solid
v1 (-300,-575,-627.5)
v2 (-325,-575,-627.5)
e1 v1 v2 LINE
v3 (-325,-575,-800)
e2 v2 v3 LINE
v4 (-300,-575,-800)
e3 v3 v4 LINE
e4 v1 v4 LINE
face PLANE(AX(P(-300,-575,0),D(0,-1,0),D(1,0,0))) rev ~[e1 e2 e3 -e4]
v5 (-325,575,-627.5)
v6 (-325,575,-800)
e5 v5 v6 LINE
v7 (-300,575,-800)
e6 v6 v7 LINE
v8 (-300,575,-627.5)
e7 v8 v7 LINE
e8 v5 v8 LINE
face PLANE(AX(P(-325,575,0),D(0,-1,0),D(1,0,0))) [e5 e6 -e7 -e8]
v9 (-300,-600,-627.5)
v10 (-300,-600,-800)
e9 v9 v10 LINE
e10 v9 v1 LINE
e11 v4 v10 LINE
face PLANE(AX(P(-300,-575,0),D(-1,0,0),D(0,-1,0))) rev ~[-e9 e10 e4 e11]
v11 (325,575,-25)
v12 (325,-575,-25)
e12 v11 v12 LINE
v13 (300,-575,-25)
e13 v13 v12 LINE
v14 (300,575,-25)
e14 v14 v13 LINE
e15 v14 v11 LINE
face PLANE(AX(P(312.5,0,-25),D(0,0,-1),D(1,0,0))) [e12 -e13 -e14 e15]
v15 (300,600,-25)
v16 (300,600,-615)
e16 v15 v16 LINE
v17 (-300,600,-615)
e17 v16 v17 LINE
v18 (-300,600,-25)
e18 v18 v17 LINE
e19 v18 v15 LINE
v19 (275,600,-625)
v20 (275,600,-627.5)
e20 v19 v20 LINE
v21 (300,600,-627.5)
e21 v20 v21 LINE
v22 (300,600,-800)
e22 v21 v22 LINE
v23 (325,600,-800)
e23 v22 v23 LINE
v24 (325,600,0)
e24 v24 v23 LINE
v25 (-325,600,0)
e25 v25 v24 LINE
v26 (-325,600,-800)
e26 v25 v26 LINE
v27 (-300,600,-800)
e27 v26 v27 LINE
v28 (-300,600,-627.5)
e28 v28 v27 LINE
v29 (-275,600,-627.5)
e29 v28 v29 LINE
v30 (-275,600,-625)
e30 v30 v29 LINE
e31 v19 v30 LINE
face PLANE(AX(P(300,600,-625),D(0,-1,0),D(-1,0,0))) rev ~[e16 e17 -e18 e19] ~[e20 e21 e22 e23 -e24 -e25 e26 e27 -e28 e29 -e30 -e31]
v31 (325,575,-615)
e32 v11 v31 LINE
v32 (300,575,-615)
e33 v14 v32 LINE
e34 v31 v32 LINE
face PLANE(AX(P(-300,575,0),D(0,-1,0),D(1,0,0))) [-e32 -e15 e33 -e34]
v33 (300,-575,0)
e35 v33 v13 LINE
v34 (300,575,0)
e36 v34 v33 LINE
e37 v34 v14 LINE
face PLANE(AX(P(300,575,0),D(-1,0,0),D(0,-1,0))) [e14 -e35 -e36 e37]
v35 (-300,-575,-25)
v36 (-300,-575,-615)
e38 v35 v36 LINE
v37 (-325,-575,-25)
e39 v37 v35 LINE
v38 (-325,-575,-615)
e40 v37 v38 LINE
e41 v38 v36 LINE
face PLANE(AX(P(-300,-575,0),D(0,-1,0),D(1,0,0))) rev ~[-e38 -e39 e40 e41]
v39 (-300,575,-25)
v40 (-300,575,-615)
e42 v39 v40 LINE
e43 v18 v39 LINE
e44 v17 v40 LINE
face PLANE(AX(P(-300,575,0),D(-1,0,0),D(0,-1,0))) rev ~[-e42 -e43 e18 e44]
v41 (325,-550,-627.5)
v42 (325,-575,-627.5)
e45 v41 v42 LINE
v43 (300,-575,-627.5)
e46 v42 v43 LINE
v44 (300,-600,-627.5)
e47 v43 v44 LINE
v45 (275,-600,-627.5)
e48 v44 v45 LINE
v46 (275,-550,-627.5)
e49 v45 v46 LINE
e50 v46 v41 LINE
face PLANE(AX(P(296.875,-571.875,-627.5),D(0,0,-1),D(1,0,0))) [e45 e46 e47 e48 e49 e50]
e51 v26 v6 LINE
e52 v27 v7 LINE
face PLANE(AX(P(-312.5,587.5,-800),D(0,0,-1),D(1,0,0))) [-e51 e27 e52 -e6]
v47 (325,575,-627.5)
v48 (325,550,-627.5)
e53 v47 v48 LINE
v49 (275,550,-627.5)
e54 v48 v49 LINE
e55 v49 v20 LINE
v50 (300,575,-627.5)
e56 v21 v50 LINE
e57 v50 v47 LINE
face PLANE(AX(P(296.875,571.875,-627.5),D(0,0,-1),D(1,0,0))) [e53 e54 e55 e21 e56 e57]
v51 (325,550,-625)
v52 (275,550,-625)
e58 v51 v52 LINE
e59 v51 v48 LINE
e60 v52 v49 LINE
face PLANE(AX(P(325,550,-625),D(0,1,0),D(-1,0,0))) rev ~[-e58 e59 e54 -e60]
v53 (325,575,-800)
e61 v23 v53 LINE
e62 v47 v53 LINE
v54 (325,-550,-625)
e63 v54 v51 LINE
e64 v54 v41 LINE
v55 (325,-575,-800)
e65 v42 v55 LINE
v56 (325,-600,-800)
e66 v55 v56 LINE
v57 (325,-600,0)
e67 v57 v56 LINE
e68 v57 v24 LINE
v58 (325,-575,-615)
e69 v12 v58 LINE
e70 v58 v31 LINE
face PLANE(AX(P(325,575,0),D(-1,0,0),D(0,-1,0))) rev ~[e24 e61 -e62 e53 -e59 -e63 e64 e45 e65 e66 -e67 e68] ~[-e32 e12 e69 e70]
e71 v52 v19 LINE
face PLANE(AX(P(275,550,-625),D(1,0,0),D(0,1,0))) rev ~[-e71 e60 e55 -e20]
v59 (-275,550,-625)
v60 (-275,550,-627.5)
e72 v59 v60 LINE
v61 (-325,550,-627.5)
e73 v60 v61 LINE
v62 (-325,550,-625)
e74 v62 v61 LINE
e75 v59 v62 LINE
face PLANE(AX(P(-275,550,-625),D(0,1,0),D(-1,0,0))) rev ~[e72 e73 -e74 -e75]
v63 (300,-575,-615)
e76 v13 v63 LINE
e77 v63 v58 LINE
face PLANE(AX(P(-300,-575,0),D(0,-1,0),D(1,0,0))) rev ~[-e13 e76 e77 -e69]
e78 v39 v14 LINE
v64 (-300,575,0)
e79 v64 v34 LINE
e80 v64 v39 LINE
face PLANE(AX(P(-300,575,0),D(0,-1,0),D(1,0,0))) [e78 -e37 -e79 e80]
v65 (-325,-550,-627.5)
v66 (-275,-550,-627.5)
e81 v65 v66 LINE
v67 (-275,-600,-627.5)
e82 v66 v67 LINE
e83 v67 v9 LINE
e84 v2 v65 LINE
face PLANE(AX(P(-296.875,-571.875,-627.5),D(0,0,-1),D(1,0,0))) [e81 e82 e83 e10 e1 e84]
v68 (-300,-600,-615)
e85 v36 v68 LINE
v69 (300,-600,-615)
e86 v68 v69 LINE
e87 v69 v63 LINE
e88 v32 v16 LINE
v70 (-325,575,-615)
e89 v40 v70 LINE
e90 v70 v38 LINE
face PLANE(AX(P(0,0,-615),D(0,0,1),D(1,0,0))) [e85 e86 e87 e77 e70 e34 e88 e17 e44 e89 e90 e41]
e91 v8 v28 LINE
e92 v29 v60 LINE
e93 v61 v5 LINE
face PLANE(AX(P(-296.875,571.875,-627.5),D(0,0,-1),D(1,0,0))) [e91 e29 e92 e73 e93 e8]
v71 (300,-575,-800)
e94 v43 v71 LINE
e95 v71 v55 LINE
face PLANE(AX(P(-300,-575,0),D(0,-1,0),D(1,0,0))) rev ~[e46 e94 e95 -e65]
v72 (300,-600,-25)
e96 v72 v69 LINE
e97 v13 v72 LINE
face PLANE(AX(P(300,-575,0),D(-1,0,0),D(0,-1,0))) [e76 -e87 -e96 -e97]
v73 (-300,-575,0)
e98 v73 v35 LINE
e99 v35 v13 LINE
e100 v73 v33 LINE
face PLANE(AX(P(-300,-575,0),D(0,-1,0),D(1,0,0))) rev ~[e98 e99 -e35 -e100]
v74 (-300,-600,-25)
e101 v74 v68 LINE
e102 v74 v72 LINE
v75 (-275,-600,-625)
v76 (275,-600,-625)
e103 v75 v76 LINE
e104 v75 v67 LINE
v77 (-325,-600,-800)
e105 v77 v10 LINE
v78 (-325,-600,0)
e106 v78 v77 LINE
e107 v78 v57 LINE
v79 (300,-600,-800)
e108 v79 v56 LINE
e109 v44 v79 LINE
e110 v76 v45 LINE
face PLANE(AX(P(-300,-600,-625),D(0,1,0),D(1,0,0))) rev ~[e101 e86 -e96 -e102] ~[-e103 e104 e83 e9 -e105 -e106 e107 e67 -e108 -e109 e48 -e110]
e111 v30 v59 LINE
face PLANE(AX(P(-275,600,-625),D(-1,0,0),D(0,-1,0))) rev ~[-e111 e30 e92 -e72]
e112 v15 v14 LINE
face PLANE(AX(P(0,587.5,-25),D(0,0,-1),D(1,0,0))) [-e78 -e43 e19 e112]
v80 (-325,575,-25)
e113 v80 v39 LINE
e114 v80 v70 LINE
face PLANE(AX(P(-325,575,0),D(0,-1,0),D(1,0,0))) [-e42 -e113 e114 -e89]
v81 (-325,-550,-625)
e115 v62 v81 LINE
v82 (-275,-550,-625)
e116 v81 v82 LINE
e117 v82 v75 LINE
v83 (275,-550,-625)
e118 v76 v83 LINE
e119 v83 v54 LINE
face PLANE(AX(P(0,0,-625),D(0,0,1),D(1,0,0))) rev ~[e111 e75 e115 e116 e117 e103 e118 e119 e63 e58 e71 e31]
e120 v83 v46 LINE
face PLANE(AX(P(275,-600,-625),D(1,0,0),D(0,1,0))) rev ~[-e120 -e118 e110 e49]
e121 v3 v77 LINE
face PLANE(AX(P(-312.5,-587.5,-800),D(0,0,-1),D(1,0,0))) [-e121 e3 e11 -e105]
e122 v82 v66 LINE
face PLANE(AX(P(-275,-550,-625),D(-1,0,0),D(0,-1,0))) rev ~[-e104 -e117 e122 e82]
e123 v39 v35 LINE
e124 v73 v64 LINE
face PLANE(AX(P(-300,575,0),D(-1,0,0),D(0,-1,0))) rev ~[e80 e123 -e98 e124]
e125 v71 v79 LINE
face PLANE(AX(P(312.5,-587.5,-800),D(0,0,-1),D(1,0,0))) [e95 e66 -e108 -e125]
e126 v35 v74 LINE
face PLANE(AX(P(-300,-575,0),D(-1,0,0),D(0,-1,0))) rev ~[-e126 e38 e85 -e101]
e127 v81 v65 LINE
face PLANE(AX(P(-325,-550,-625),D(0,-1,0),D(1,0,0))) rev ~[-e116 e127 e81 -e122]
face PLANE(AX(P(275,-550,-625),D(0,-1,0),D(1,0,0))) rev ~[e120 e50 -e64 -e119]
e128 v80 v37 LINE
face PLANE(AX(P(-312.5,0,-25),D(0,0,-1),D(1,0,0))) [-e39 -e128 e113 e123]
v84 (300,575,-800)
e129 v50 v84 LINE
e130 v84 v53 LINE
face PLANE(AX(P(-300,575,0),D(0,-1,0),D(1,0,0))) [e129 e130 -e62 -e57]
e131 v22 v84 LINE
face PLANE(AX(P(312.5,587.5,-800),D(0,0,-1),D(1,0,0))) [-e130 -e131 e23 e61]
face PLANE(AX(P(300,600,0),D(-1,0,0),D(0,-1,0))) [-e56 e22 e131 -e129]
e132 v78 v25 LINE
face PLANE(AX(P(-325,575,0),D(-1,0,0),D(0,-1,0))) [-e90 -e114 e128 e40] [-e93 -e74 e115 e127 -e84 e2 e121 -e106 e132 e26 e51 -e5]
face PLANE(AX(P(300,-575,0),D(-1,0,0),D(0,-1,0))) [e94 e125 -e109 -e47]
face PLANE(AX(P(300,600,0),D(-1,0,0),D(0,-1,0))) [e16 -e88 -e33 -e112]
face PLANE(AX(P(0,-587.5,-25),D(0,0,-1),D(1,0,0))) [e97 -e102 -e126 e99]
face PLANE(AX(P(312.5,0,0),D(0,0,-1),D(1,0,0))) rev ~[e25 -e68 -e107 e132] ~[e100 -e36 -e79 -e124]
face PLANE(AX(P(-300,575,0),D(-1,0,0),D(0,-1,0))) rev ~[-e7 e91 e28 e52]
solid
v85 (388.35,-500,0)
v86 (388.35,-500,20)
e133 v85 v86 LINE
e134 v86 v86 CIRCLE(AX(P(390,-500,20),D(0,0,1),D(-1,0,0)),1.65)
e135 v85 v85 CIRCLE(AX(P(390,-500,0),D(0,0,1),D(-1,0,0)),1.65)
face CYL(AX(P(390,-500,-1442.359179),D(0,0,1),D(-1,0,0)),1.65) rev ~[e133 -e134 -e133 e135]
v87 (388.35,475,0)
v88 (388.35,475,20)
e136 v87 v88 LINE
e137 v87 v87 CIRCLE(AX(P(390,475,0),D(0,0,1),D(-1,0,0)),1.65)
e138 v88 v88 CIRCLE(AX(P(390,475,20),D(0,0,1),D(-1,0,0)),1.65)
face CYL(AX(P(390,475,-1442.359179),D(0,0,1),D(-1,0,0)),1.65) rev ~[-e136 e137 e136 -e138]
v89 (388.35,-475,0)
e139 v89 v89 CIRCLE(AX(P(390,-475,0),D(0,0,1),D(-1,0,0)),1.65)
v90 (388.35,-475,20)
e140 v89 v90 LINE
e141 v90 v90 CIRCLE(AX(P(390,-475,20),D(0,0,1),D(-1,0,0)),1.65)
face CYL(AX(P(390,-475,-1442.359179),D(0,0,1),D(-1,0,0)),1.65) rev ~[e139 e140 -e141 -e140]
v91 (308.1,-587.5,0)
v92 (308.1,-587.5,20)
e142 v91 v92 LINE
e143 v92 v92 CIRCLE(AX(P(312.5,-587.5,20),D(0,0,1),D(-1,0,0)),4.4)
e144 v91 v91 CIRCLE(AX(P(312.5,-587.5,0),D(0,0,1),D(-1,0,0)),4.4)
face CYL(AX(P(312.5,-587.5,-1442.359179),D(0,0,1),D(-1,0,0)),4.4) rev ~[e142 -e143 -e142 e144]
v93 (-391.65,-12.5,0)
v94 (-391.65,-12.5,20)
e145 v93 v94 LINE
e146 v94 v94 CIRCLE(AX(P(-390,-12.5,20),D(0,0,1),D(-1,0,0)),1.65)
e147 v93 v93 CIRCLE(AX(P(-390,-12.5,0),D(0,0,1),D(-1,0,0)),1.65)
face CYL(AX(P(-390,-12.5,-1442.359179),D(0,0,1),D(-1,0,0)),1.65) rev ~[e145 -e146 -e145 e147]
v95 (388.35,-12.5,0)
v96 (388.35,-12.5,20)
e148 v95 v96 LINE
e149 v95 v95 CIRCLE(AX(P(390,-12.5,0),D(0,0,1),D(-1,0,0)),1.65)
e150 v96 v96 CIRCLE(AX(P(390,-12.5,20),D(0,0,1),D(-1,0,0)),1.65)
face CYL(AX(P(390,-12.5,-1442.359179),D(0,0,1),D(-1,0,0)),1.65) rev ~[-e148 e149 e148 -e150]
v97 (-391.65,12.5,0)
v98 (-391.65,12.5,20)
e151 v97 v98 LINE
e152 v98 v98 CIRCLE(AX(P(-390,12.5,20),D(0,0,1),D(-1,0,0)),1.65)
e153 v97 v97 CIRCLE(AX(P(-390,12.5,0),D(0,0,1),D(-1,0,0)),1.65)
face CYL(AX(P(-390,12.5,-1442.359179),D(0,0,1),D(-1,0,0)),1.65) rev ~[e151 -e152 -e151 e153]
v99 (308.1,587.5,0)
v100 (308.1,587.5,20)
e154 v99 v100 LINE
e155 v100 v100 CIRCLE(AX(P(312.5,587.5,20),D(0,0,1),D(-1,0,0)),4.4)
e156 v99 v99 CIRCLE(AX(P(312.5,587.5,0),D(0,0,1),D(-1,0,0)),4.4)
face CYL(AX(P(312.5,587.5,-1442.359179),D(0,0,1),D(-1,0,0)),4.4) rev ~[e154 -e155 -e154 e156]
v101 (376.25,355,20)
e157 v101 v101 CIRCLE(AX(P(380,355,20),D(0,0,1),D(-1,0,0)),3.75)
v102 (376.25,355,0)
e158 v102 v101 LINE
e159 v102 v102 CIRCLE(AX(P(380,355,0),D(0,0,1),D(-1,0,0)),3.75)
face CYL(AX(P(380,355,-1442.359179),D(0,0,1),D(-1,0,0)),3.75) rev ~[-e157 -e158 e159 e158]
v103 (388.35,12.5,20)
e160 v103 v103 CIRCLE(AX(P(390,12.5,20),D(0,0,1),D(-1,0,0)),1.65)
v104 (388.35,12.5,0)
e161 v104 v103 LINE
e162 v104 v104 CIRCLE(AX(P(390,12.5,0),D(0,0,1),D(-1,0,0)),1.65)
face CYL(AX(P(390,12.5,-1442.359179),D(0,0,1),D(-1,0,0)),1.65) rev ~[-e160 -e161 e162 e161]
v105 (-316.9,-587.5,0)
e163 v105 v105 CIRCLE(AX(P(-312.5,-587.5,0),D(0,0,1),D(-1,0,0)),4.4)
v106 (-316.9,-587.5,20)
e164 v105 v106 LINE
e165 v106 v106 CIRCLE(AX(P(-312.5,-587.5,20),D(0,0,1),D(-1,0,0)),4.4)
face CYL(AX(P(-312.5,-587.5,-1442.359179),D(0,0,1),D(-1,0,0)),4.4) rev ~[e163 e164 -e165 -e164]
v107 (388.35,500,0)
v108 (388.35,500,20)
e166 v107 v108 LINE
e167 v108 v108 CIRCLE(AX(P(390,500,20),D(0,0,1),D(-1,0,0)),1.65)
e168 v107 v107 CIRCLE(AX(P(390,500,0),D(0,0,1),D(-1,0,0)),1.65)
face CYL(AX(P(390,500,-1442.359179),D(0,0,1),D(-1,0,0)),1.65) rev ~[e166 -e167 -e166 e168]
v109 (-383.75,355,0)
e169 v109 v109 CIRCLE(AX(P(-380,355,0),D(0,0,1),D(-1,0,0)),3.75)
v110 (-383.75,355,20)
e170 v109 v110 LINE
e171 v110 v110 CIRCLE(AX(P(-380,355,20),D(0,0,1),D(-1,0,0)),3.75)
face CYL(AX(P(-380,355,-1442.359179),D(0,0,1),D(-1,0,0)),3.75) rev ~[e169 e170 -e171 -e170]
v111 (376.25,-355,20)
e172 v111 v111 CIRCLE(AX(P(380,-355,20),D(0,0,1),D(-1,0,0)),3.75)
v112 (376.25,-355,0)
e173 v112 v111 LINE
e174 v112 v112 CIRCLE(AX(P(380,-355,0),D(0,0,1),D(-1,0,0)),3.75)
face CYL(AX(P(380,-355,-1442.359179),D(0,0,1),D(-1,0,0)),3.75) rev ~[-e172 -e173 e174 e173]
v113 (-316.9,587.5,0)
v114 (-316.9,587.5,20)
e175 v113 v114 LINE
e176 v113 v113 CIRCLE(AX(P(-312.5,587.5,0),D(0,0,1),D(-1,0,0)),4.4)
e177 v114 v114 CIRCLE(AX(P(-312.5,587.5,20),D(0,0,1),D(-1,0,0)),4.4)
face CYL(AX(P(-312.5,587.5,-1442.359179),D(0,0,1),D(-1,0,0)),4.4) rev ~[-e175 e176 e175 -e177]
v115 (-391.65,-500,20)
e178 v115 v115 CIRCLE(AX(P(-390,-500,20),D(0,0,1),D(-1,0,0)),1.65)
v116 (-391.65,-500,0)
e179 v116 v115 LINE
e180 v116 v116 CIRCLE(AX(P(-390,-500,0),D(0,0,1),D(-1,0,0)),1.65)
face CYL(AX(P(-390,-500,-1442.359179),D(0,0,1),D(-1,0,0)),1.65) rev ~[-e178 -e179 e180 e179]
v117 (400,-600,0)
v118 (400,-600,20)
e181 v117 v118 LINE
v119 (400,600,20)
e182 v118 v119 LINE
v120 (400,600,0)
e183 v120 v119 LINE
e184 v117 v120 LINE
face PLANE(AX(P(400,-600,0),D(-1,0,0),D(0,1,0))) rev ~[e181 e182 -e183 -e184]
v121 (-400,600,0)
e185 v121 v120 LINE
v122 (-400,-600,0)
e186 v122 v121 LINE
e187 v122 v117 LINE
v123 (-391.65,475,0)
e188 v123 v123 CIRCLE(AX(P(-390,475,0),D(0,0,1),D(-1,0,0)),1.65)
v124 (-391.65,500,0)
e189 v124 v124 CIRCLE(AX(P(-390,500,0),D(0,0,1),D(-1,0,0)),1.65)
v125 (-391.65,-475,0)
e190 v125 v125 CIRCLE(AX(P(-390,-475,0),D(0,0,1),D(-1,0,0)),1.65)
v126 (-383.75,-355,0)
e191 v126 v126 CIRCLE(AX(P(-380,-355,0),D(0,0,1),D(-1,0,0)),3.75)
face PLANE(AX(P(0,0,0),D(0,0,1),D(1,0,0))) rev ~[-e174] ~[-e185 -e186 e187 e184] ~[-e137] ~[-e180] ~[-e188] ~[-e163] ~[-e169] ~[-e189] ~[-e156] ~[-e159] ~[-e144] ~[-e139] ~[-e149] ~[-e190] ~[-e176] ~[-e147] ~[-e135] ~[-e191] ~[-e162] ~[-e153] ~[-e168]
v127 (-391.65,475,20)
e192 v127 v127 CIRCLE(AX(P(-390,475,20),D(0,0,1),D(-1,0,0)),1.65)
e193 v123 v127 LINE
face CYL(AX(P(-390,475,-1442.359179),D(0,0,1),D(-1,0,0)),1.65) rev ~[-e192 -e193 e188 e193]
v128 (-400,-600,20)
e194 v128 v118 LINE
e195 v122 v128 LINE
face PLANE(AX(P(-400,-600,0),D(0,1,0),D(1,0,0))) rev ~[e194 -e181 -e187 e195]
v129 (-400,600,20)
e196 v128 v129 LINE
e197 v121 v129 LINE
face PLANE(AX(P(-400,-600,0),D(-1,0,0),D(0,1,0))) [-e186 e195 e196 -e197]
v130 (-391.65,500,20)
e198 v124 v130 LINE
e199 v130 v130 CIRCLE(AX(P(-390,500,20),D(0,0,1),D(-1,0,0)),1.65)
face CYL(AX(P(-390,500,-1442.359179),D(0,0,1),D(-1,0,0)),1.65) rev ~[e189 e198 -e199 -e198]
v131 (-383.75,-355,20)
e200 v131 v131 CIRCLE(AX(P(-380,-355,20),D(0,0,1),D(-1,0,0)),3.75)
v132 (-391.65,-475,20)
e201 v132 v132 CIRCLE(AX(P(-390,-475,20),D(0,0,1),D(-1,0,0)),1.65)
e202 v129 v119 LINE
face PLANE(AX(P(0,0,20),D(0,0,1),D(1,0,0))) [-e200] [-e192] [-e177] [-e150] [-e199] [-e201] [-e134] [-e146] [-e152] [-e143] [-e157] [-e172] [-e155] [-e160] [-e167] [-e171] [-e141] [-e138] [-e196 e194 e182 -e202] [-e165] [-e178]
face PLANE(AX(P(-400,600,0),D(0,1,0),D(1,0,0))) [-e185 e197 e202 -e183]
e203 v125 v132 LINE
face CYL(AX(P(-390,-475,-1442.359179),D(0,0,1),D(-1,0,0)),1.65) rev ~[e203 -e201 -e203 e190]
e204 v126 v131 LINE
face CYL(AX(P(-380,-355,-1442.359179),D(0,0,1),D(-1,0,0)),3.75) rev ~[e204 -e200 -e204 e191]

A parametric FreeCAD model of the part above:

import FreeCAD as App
import Part
import Sketcher

V = App.Vector
Q = App.Units.Quantity

doc = App.newDocument("Part")
body = doc.addObject("PartDesign::Body", "Body")

sketch1 = doc.addObject("Sketcher::SketchObject", "Sketch")
body.addObject(sketch1)
sketch1.AttachmentSupport = (doc.XY_Plane, [""])
sketch1.MapMode = "FlatFace"
sketch1.addGeometry([
    Part.LineSegment(V(-400, 600, 0), V(-400, -600, 0)),
    Part.LineSegment(V(-400, -600, 0), V(400, -600, 0)),
    Part.LineSegment(V(400, -600, 0), V(400, 600, 0)),
    Part.LineSegment(V(400, 600, 0), V(-400, 600, 0)),
], False)
sketch1.addConstraint([
    Sketcher.Constraint("Coincident", 0, 2, 1, 1),
    Sketcher.Constraint("Coincident", 1, 2, 2, 1),
    Sketcher.Constraint("Coincident", 2, 2, 3, 1),
    Sketcher.Constraint("Coincident", 3, 2, 0, 1),
    Sketcher.Constraint("Vertical", 0),
    Sketcher.Constraint("Horizontal", 1),
    Sketcher.Constraint("Vertical", 2),
    Sketcher.Constraint("Horizontal", 3),
    Sketcher.Constraint("Symmetric", 0, 2, 2, 2, -1, 1),
    Sketcher.Constraint("DistanceX", 1, 1, 1, 2, Q("800 mm")),
    Sketcher.Constraint("DistanceY", 0, 2, 0, 1, Q("1200 mm")),
])
pad1 = doc.addObject("PartDesign::Pad", "Pad")
body.addObject(pad1)
pad1.Profile = sketch1
pad1.Length = 20

sketch2 = doc.addObject("Sketcher::SketchObject", "Sketch001")
body.addObject(sketch2)
sketch2.AttachmentSupport = (doc.XY_Plane, [""])
sketch2.MapMode = "FlatFace"
sketch2.addGeometry([
    Part.Circle(V(390, -500, 0), V(0, 0, 1), 1.65),
    Part.Circle(V(390, -475, 0), V(0, 0, 1), 1.65),
    Part.Circle(V(390, -12.5, 0), V(0, 0, 1), 1.65),
    Part.Circle(V(390, 12.5, 0), V(0, 0, 1), 1.65),
    Part.Circle(V(390, 500, 0), V(0, 0, 1), 1.65),
    Part.Circle(V(390, 475, 0), V(0, 0, 1), 1.65),
    Part.Circle(V(-390, 500, 0), V(0, 0, 1), 1.65),
    Part.Circle(V(-390, 475, 0), V(0, 0, 1), 1.65),
    Part.Circle(V(-390, 12.5, 0), V(0, 0, 1), 1.65),
    Part.Circle(V(-390, -12.5, 0), V(0, 0, 1), 1.65),
    Part.Circle(V(-390, -475, 0), V(0, 0, 1), 1.65),
    Part.Circle(V(-390, -500, 0), V(0, 0, 1), 1.65),
], False)
sketch2.addConstraint([
    Sketcher.Constraint("Equal", 0, 1),
    Sketcher.Constraint("Equal", 1, 2),
    Sketcher.Constraint("Equal", 2, 3),
    Sketcher.Constraint("Equal", 3, 4),
    Sketcher.Constraint("Equal", 4, 5),
    Sketcher.Constraint("Equal", 5, 6),
    Sketcher.Constraint("Equal", 6, 7),
    Sketcher.Constraint("Equal", 7, 8),
    Sketcher.Constraint("Equal", 8, 9),
    Sketcher.Constraint("Equal", 9, 10),
    Sketcher.Constraint("Equal", 10, 11),
    Sketcher.Constraint("Symmetric", 0, 3, 6, 3, -1, 1),
    Sketcher.Constraint("Symmetric", 1, 3, 7, 3, -1, 1),
    Sketcher.Constraint("Symmetric", 2, 3, 8, 3, -1, 1),
    Sketcher.Constraint("Symmetric", 3, 3, 9, 3, -1, 1),
    Sketcher.Constraint("Symmetric", 5, 3, 10, 3, -1, 1),
    Sketcher.Constraint("Symmetric", 4, 3, 11, 3, -1, 1),
    Sketcher.Constraint("Symmetric", 4, 3, 6, 3, -2),
    Sketcher.Constraint("Symmetric", 5, 3, 7, 3, -2),
    Sketcher.Constraint("Symmetric", 3, 3, 8, 3, -2),
    Sketcher.Constraint("Vertical", 0, 3, 1, 3),
    Sketcher.Constraint("Vertical", 1, 3, 2, 3),
    Sketcher.Constraint("Diameter", 0, Q("3.3 mm")),
    Sketcher.Constraint("DistanceX", -1, 1, 0, 3, Q("390 mm")),
    Sketcher.Constraint("DistanceY", 0, 3, -1, 1, Q("500 mm")),
    Sketcher.Constraint("DistanceY", 1, 3, -1, 1, Q("475 mm")),
    Sketcher.Constraint("DistanceY", 2, 3, 3, 3, Q("25 mm")),
])
doc.recompute()
hole = doc.addObject("PartDesign::Hole", "Hole")
body.addObject(hole)
hole.Profile = sketch2
hole.ThreadType = "None"
hole.Diameter = 3.3
hole.DepthType = "ThroughAll"
hole.Reversed = True

sketch3 = doc.addObject("Sketcher::SketchObject", "Sketch002")
body.addObject(sketch3)
sketch3.AttachmentSupport = (doc.XY_Plane, [""])
sketch3.MapMode = "FlatFace"
sketch3.addGeometry([
    Part.Circle(V(380, -355, 0), V(0, 0, 1), 3.75),
    Part.Circle(V(380, 355, 0), V(0, 0, 1), 3.75),
    Part.Circle(V(-380, 355, 0), V(0, 0, 1), 3.75),
    Part.Circle(V(-380, -355, 0), V(0, 0, 1), 3.75),
], False)
sketch3.addConstraint([
    Sketcher.Constraint("Equal", 0, 1),
    Sketcher.Constraint("Equal", 1, 2),
    Sketcher.Constraint("Equal", 2, 3),
    Sketcher.Constraint("Symmetric", 0, 3, 2, 3, -1, 1),
    Sketcher.Constraint("Symmetric", 1, 3, 3, 3, -1, 1),
    Sketcher.Constraint("Symmetric", 1, 3, 2, 3, -2),
    Sketcher.Constraint("Diameter", 0, Q("7.5 mm")),
    Sketcher.Constraint("DistanceX", -1, 1, 0, 3, Q("380 mm")),
    Sketcher.Constraint("DistanceY", 0, 3, -1, 1, Q("355 mm")),
])
doc.recompute()
hole2 = doc.addObject("PartDesign::Hole", "Hole001")
body.addObject(hole2)
hole2.Profile = sketch3
hole2.ThreadType = "None"
hole2.Diameter = 7.5
hole2.DepthType = "ThroughAll"
hole2.Reversed = True

sketch4 = doc.addObject("Sketcher::SketchObject", "Sketch003")
body.addObject(sketch4)
sketch4.AttachmentSupport = (doc.XY_Plane, [""])
sketch4.MapMode = "FlatFace"
sketch4.addGeometry([
    Part.Circle(V(-312.5, -587.5, 0), V(0, 0, 1), 4.4),
    Part.Circle(V(312.5, -587.5, 0), V(0, 0, 1), 4.4),
    Part.Circle(V(312.5, 587.5, 0), V(0, 0, 1), 4.4),
    Part.Circle(V(-312.5, 587.5, 0), V(0, 0, 1), 4.4),
], False)
sketch4.addConstraint([
    Sketcher.Constraint("Equal", 0, 1),
    Sketcher.Constraint("Equal", 1, 2),
    Sketcher.Constraint("Equal", 2, 3),
    Sketcher.Constraint("Symmetric", 0, 3, 2, 3, -1, 1),
    Sketcher.Constraint("Symmetric", 1, 3, 3, 3, -1, 1),
    Sketcher.Constraint("Symmetric", 0, 3, 1, 3, -2),
    Sketcher.Constraint("Diameter", 0, Q("8.8 mm")),
    Sketcher.Constraint("DistanceX", 0, 3, 1, 3, Q("625 mm")),
    Sketcher.Constraint("DistanceY", 1, 3, 2, 3, Q("1175 mm")),
])
doc.recompute()
hole3 = doc.addObject("PartDesign::Hole", "Hole002")
body.addObject(hole3)
hole3.Profile = sketch4
hole3.ThreadType = "None"
hole3.Diameter = 8.8
hole3.DepthType = "ThroughAll"
hole3.Reversed = True
body2 = doc.addObject("PartDesign::Body", "Body001")

sketch5 = doc.addObject("Sketcher::SketchObject", "Sketch004")
body2.addObject(sketch5)
sketch5.AttachmentSupport = (doc.getObject("XY_Plane001"), [""])
sketch5.MapMode = "FlatFace"
sketch5.addGeometry([
    Part.LineSegment(V(-325, -600, 0), V(-325, -575, 0)),
    Part.LineSegment(V(-325, -575, 0), V(-300, -575, 0)),
    Part.LineSegment(V(-300, -575, 0), V(-300, -600, 0)),
    Part.LineSegment(V(-300, -600, 0), V(-325, -600, 0)),
], False)
sketch5.addConstraint([
    Sketcher.Constraint("Coincident", 0, 2, 1, 1),
    Sketcher.Constraint("Coincident", 1, 2, 2, 1),
    Sketcher.Constraint("Coincident", 2, 2, 3, 1),
    Sketcher.Constraint("Coincident", 3, 2, 0, 1),
    Sketcher.Constraint("Vertical", 0),
    Sketcher.Constraint("Horizontal", 1),
    Sketcher.Constraint("Vertical", 2),
    Sketcher.Constraint("Horizontal", 3),
    Sketcher.Constraint("Equal", 3, 0),
    Sketcher.Constraint("DistanceX", 1, 1, 1, 2, Q("25 mm")),
    Sketcher.Constraint("DistanceX", 0, 2, -1, 1, Q("325 mm")),
    Sketcher.Constraint("DistanceY", 0, 2, -1, 1, Q("575 mm")),
])
pad2 = doc.addObject("PartDesign::Pad", "Pad001")
body2.addObject(pad2)
pad2.Profile = sketch5
pad2.Length = 800
pad2.Reversed = True
body3 = doc.addObject("PartDesign::Body", "Body002")

sketch6 = doc.addObject("Sketcher::SketchObject", "Sketch005")
body3.addObject(sketch6)
sketch6.AttachmentSupport = (doc.getObject("XY_Plane002"), [""])
sketch6.MapMode = "FlatFace"
sketch6.addGeometry([
    Part.LineSegment(V(300, -600, 0), V(300, -575, 0)),
    Part.LineSegment(V(300, -575, 0), V(325, -575, 0)),
    Part.LineSegment(V(325, -575, 0), V(325, -600, 0)),
    Part.LineSegment(V(325, -600, 0), V(300, -600, 0)),
], False)
sketch6.addConstraint([
    Sketcher.Constraint("Coincident", 0, 2, 1, 1),
    Sketcher.Constraint("Coincident", 1, 2, 2, 1),
    Sketcher.Constraint("Coincident", 2, 2, 3, 1),
    Sketcher.Constraint("Coincident", 3, 2, 0, 1),
    Sketcher.Constraint("Vertical", 0),
    Sketcher.Constraint("Horizontal", 1),
    Sketcher.Constraint("Vertical", 2),
    Sketcher.Constraint("Horizontal", 3),
    Sketcher.Constraint("Equal", 3, 0),
    Sketcher.Constraint("DistanceX", 1, 1, 1, 2, Q("25 mm")),
    Sketcher.Constraint("DistanceX", -1, 1, 0, 2, Q("300 mm")),
    Sketcher.Constraint("DistanceY", 0, 2, -1, 1, Q("575 mm")),
])
pad3 = doc.addObject("PartDesign::Pad", "Pad002")
body3.addObject(pad3)
pad3.Profile = sketch6
pad3.Length = 800
pad3.Reversed = True
body4 = doc.addObject("PartDesign::Body", "Body003")

sketch7 = doc.addObject("Sketcher::SketchObject", "Sketch006")
body4.addObject(sketch7)
sketch7.AttachmentSupport = (doc.getObject("XY_Plane003"), [""])
sketch7.MapMode = "FlatFace"
sketch7.addGeometry([
    Part.LineSegment(V(-325, 575, 0), V(-325, 600, 0)),
    Part.LineSegment(V(-325, 600, 0), V(-300, 600, 0)),
    Part.LineSegment(V(-300, 600, 0), V(-300, 575, 0)),
    Part.LineSegment(V(-300, 575, 0), V(-325, 575, 0)),
], False)
sketch7.addConstraint([
    Sketcher.Constraint("Coincident", 0, 2, 1, 1),
    Sketcher.Constraint("Coincident", 1, 2, 2, 1),
    Sketcher.Constraint("Coincident", 2, 2, 3, 1),
    Sketcher.Constraint("Coincident", 3, 2, 0, 1),
    Sketcher.Constraint("Vertical", 0),
    Sketcher.Constraint("Horizontal", 1),
    Sketcher.Constraint("Vertical", 2),
    Sketcher.Constraint("Horizontal", 3),
    Sketcher.Constraint("Equal", 3, 0),
    Sketcher.Constraint("DistanceX", 1, 1, 1, 2, Q("25 mm")),
    Sketcher.Constraint("DistanceX", 0, 2, -1, 1, Q("325 mm")),
    Sketcher.Constraint("DistanceY", -1, 1, 0, 2, Q("600 mm")),
])
pad4 = doc.addObject("PartDesign::Pad", "Pad003")
body4.addObject(pad4)
pad4.Profile = sketch7
pad4.Length = 800
pad4.Reversed = True
body5 = doc.addObject("PartDesign::Body", "Body004")

sketch8 = doc.addObject("Sketcher::SketchObject", "Sketch007")
body5.addObject(sketch8)
sketch8.AttachmentSupport = (doc.getObject("XY_Plane004"), [""])
sketch8.MapMode = "FlatFace"
sketch8.addGeometry([
    Part.LineSegment(V(300, 575, 0), V(300, 600, 0)),
    Part.LineSegment(V(300, 600, 0), V(325, 600, 0)),
    Part.LineSegment(V(325, 600, 0), V(325, 575, 0)),
    Part.LineSegment(V(325, 575, 0), V(300, 575, 0)),
], False)
sketch8.addConstraint([
    Sketcher.Constraint("Coincident", 0, 2, 1, 1),
    Sketcher.Constraint("Coincident", 1, 2, 2, 1),
    Sketcher.Constraint("Coincident", 2, 2, 3, 1),
    Sketcher.Constraint("Coincident", 3, 2, 0, 1),
    Sketcher.Constraint("Vertical", 0),
    Sketcher.Constraint("Horizontal", 1),
    Sketcher.Constraint("Vertical", 2),
    Sketcher.Constraint("Horizontal", 3),
    Sketcher.Constraint("Equal", 3, 0),
    Sketcher.Constraint("DistanceX", 1, 1, 1, 2, Q("25 mm")),
    Sketcher.Constraint("DistanceX", -1, 1, 0, 2, Q("300 mm")),
    Sketcher.Constraint("DistanceY", -1, 1, 0, 2, Q("600 mm")),
])
pad5 = doc.addObject("PartDesign::Pad", "Pad004")
body5.addObject(pad5)
pad5.Profile = sketch8
pad5.Length = 800
pad5.Reversed = True
body6 = doc.addObject("PartDesign::Body", "Body005")

sketch9 = doc.addObject("Sketcher::SketchObject", "Sketch008")
body6.addObject(sketch9)
sketch9.AttachmentSupport = (doc.getObject("XY_Plane005"), [""])
sketch9.MapMode = "FlatFace"
sketch9.addGeometry([
    Part.LineSegment(V(-300, 575, 0), V(-300, 600, 0)),
    Part.LineSegment(V(-300, 600, 0), V(300, 600, 0)),
    Part.LineSegment(V(300, 600, 0), V(300, 575, 0)),
    Part.LineSegment(V(300, 575, 0), V(-300, 575, 0)),
], False)
sketch9.addConstraint([
    Sketcher.Constraint("Coincident", 0, 2, 1, 1),
    Sketcher.Constraint("Coincident", 1, 2, 2, 1),
    Sketcher.Constraint("Coincident", 2, 2, 3, 1),
    Sketcher.Constraint("Coincident", 3, 2, 0, 1),
    Sketcher.Constraint("Vertical", 0),
    Sketcher.Constraint("Horizontal", 1),
    Sketcher.Constraint("Vertical", 2),
    Sketcher.Constraint("Horizontal", 3),
    Sketcher.Constraint("DistanceX", 1, 1, 1, 2, Q("600 mm")),
    Sketcher.Constraint("DistanceY", 0, 1, 0, 2, Q("25 mm")),
    Sketcher.Constraint("DistanceX", 0, 2, -1, 1, Q("300 mm")),
    Sketcher.Constraint("DistanceY", -1, 1, 0, 2, Q("600 mm")),
])
pad6 = doc.addObject("PartDesign::Pad", "Pad005")
body6.addObject(pad6)
pad6.Profile = sketch9
pad6.Length = 25
pad6.Reversed = True
body7 = doc.addObject("PartDesign::Body", "Body006")

sketch10 = doc.addObject("Sketcher::SketchObject", "Sketch009")
body7.addObject(sketch10)
sketch10.AttachmentSupport = (doc.getObject("XY_Plane006"), [""])
sketch10.MapMode = "FlatFace"
sketch10.addGeometry([
    Part.LineSegment(V(-325, -575, 0), V(-325, 575, 0)),
    Part.LineSegment(V(-325, 575, 0), V(-300, 575, 0)),
    Part.LineSegment(V(-300, 575, 0), V(-300, -575, 0)),
    Part.LineSegment(V(-300, -575, 0), V(-325, -575, 0)),
], False)
sketch10.addConstraint([
    Sketcher.Constraint("Coincident", 0, 2, 1, 1),
    Sketcher.Constraint("Coincident", 1, 2, 2, 1),
    Sketcher.Constraint("Coincident", 2, 2, 3, 1),
    Sketcher.Constraint("Coincident", 3, 2, 0, 1),
    Sketcher.Constraint("Vertical", 0),
    Sketcher.Constraint("Horizontal", 1),
    Sketcher.Constraint("Vertical", 2),
    Sketcher.Constraint("Horizontal", 3),
    Sketcher.Constraint("DistanceX", 1, 1, 1, 2, Q("25 mm")),
    Sketcher.Constraint("DistanceY", 0, 1, 0, 2, Q("1150 mm")),
    Sketcher.Constraint("DistanceX", 0, 2, -1, 1, Q("325 mm")),
    Sketcher.Constraint("DistanceY", -1, 1, 0, 2, Q("575 mm")),
])
pad7 = doc.addObject("PartDesign::Pad", "Pad006")
body7.addObject(pad7)
pad7.Profile = sketch10
pad7.Length = 25
pad7.Reversed = True
body8 = doc.addObject("PartDesign::Body", "Body007")

sketch11 = doc.addObject("Sketcher::SketchObject", "Sketch010")
body8.addObject(sketch11)
sketch11.AttachmentSupport = (doc.getObject("XY_Plane007"), [""])
sketch11.MapMode = "FlatFace"
sketch11.addGeometry([
    Part.LineSegment(V(300, -575, 0), V(300, 575, 0)),
    Part.LineSegment(V(300, 575, 0), V(325, 575, 0)),
    Part.LineSegment(V(325, 575, 0), V(325, -575, 0)),
    Part.LineSegment(V(325, -575, 0), V(300, -575, 0)),
], False)
sketch11.addConstraint([
    Sketcher.Constraint("Coincident", 0, 2, 1, 1),
    Sketcher.Constraint("Coincident", 1, 2, 2, 1),
    Sketcher.Constraint("Coincident", 2, 2, 3, 1),
    Sketcher.Constraint("Coincident", 3, 2, 0, 1),
    Sketcher.Constraint("Vertical", 0),
    Sketcher.Constraint("Horizontal", 1),
    Sketcher.Constraint("Vertical", 2),
    Sketcher.Constraint("Horizontal", 3),
    Sketcher.Constraint("DistanceX", 1, 1, 1, 2, Q("25 mm")),
    Sketcher.Constraint("DistanceY", 0, 1, 0, 2, Q("1150 mm")),
    Sketcher.Constraint("DistanceX", -1, 1, 0, 2, Q("300 mm")),
    Sketcher.Constraint("DistanceY", -1, 1, 0, 2, Q("575 mm")),
])
pad8 = doc.addObject("PartDesign::Pad", "Pad007")
body8.addObject(pad8)
pad8.Profile = sketch11
pad8.Length = 25
pad8.Reversed = True
body9 = doc.addObject("PartDesign::Body", "Body008")

sketch12 = doc.addObject("Sketcher::SketchObject", "Sketch011")
body9.addObject(sketch12)
sketch12.AttachmentSupport = (doc.getObject("XY_Plane008"), [""])
sketch12.MapMode = "FlatFace"
sketch12.addGeometry([
    Part.LineSegment(V(-300, -600, 0), V(-300, -575, 0)),
    Part.LineSegment(V(-300, -575, 0), V(300, -575, 0)),
    Part.LineSegment(V(300, -575, 0), V(300, -600, 0)),
    Part.LineSegment(V(300, -600, 0), V(-300, -600, 0)),
], False)
sketch12.addConstraint([
    Sketcher.Constraint("Coincident", 0, 2, 1, 1),
    Sketcher.Constraint("Coincident", 1, 2, 2, 1),
    Sketcher.Constraint("Coincident", 2, 2, 3, 1),
    Sketcher.Constraint("Coincident", 3, 2, 0, 1),
    Sketcher.Constraint("Vertical", 0),
    Sketcher.Constraint("Horizontal", 1),
    Sketcher.Constraint("Vertical", 2),
    Sketcher.Constraint("Horizontal", 3),
    Sketcher.Constraint("DistanceX", 1, 1, 1, 2, Q("600 mm")),
    Sketcher.Constraint("DistanceY", 0, 1, 0, 2, Q("25 mm")),
    Sketcher.Constraint("DistanceX", 0, 2, -1, 1, Q("300 mm")),
    Sketcher.Constraint("DistanceY", 0, 2, -1, 1, Q("575 mm")),
])
pad9 = doc.addObject("PartDesign::Pad", "Pad008")
body9.addObject(pad9)
pad9.Profile = sketch12
pad9.Length = 25
pad9.Reversed = True
body2.AllowCompound = True
doc.recompute()

boolean = doc.addObject("PartDesign::Boolean", "Boolean")
body2.addObject(boolean)
boolean.Type = "Fuse"
boolean.addObjects([body3])
doc.recompute()

boolean2 = doc.addObject("PartDesign::Boolean", "Boolean001")
body2.addObject(boolean2)
boolean2.Type = "Fuse"
boolean2.addObjects([body4])
doc.recompute()

boolean3 = doc.addObject("PartDesign::Boolean", "Boolean002")
body2.addObject(boolean3)
boolean3.Type = "Fuse"
boolean3.addObjects([body5])
doc.recompute()

boolean4 = doc.addObject("PartDesign::Boolean", "Boolean003")
body2.addObject(boolean4)
boolean4.Type = "Fuse"
boolean4.addObjects([body9])
doc.recompute()

boolean5 = doc.addObject("PartDesign::Boolean", "Boolean004")
body2.addObject(boolean5)
boolean5.Type = "Fuse"
boolean5.addObjects([body7])
doc.recompute()

boolean6 = doc.addObject("PartDesign::Boolean", "Boolean005")
body2.addObject(boolean6)
boolean6.Type = "Fuse"
boolean6.addObjects([body6])
doc.recompute()

boolean7 = doc.addObject("PartDesign::Boolean", "Boolean006")
body2.addObject(boolean7)
boolean7.Type = "Fuse"
boolean7.addObjects([body8])

sketch13 = doc.addObject("Sketcher::SketchObject", "Sketch012")
body2.addObject(sketch13)
sketch13.AttachmentSupport = (doc.getObject("XY_Plane001"), [""])
sketch13.MapMode = "FlatFace"
sketch13.AttachmentOffset = App.Placement(V(0, 0, -625), App.Rotation())
sketch13.addGeometry([
    Part.LineSegment(V(325, -575, 0), V(300, -575, 0)),
    Part.LineSegment(V(300, -575, 0), V(300, -600, 0)),
    Part.LineSegment(V(300, -600, 0), V(275, -600, 0)),
    Part.LineSegment(V(275, -600, 0), V(275, -550, 0)),
    Part.LineSegment(V(275, -550, 0), V(325, -550, 0)),
    Part.LineSegment(V(325, -550, 0), V(325, -575, 0)),
    Part.LineSegment(V(-325, 575, 0), V(-300, 575, 0)),
    Part.LineSegment(V(-300, 575, 0), V(-300, 600, 0)),
    Part.LineSegment(V(-300, 600, 0), V(-275, 600, 0)),
    Part.LineSegment(V(-275, 600, 0), V(-275, 550, 0)),
    Part.LineSegment(V(-275, 550, 0), V(-325, 550, 0)),
    Part.LineSegment(V(-325, 550, 0), V(-325, 575, 0)),
    Part.LineSegment(V(300, 600, 0), V(300, 575, 0)),
    Part.LineSegment(V(300, 575, 0), V(325, 575, 0)),
    Part.LineSegment(V(325, 575, 0), V(325, 550, 0)),
    Part.LineSegment(V(325, 550, 0), V(275, 550, 0)),
    Part.LineSegment(V(275, 550, 0), V(275, 600, 0)),
    Part.LineSegment(V(275, 600, 0), V(300, 600, 0)),
    Part.LineSegment(V(-300, -600, 0), V(-300, -575, 0)),
    Part.LineSegment(V(-300, -575, 0), V(-325, -575, 0)),
    Part.LineSegment(V(-325, -575, 0), V(-325, -550, 0)),
    Part.LineSegment(V(-325, -550, 0), V(-275, -550, 0)),
    Part.LineSegment(V(-275, -550, 0), V(-275, -600, 0)),
    Part.LineSegment(V(-275, -600, 0), V(-300, -600, 0)),
], False)
sketch13.addConstraint([
    Sketcher.Constraint("Coincident", 0, 2, 1, 1),
    Sketcher.Constraint("Coincident", 1, 2, 2, 1),
    Sketcher.Constraint("Coincident", 2, 2, 3, 1),
    Sketcher.Constraint("Coincident", 3, 2, 4, 1),
    Sketcher.Constraint("Coincident", 4, 2, 5, 1),
    Sketcher.Constraint("Coincident", 5, 2, 0, 1),
    Sketcher.Constraint("Coincident", 6, 2, 7, 1),
    Sketcher.Constraint("Coincident", 7, 2, 8, 1),
    Sketcher.Constraint("Coincident", 8, 2, 9, 1),
    Sketcher.Constraint("Coincident", 9, 2, 10, 1),
    Sketcher.Constraint("Coincident", 10, 2, 11, 1),
    Sketcher.Constraint("Coincident", 11, 2, 6, 1),
    Sketcher.Constraint("Coincident", 12, 2, 13, 1),
    Sketcher.Constraint("Coincident", 13, 2, 14, 1),
    Sketcher.Constraint("Coincident", 14, 2, 15, 1),
    Sketcher.Constraint("Coincident", 15, 2, 16, 1),
    Sketcher.Constraint("Coincident", 16, 2, 17, 1),
    Sketcher.Constraint("Coincident", 17, 2, 12, 1),
    Sketcher.Constraint("Coincident", 18, 2, 19, 1),
    Sketcher.Constraint("Coincident", 19, 2, 20, 1),
    Sketcher.Constraint("Coincident", 20, 2, 21, 1),
    Sketcher.Constraint("Coincident", 21, 2, 22, 1),
    Sketcher.Constraint("Coincident", 22, 2, 23, 1),
    Sketcher.Constraint("Coincident", 23, 2, 18, 1),
    Sketcher.Constraint("Horizontal", 0),
    Sketcher.Constraint("Vertical", 1),
    Sketcher.Constraint("Horizontal", 2),
    Sketcher.Constraint("Vertical", 3),
    Sketcher.Constraint("Horizontal", 4),
    Sketcher.Constraint("Vertical", 5),
    Sketcher.Constraint("Horizontal", 6),
    Sketcher.Constraint("Vertical", 7),
    Sketcher.Constraint("Horizontal", 8),
    Sketcher.Constraint("Vertical", 9),
    Sketcher.Constraint("Horizontal", 10),
    Sketcher.Constraint("Vertical", 11),
    Sketcher.Constraint("Vertical", 12),
    Sketcher.Constraint("Horizontal", 13),
    Sketcher.Constraint("Vertical", 14),
    Sketcher.Constraint("Horizontal", 15),
    Sketcher.Constraint("Vertical", 16),
    Sketcher.Constraint("Horizontal", 17),
    Sketcher.Constraint("Vertical", 18),
    Sketcher.Constraint("Horizontal", 19),
    Sketcher.Constraint("Vertical", 20),
    Sketcher.Constraint("Horizontal", 21),
    Sketcher.Constraint("Vertical", 22),
    Sketcher.Constraint("Horizontal", 23),
    Sketcher.Constraint("Symmetric", 0, 2, 6, 2, -1, 1),
    Sketcher.Constraint("Symmetric", 2, 2, 8, 2, -1, 1),
    Sketcher.Constraint("Symmetric", 4, 2, 10, 2, -1, 1),
    Sketcher.Constraint("Symmetric", 12, 2, 18, 2, -1, 1),
    Sketcher.Constraint("Symmetric", 14, 2, 20, 2, -1, 1),
    Sketcher.Constraint("Symmetric", 16, 2, 22, 2, -1, 1),
    Sketcher.Constraint("Symmetric", 6, 2, 12, 2, -2),
    Sketcher.Constraint("Symmetric", 10, 2, 14, 2, -2),
    Sketcher.Constraint("Symmetric", 8, 2, 16, 2, -2),
    Sketcher.Constraint("Equal", 0, 2),
    Sketcher.Constraint("Equal", 23, 1),
    Sketcher.Constraint("Equal", 21, 3),
    Sketcher.Constraint("DistanceX", 0, 2, 0, 1, Q("25 mm")),
    Sketcher.Constraint("DistanceX", -1, 1, 0, 2, Q("300 mm")),
    Sketcher.Constraint("DistanceY", 0, 2, -1, 1, Q("575 mm")),
])
pad10 = doc.addObject("PartDesign::Pad", "Pad009")
body2.addObject(pad10)
pad10.Profile = sketch13
pad10.Length = 2.5
pad10.Reversed = True

sketch14 = doc.addObject("Sketcher::SketchObject", "Sketch013")
body2.addObject(sketch14)
sketch14.AttachmentSupport = (doc.getObject("XY_Plane001"), [""])
sketch14.MapMode = "FlatFace"
sketch14.AttachmentOffset = App.Placement(V(0, 0, -625), App.Rotation())
sketch14.addGeometry([
    Part.LineSegment(V(325, 575, 0), V(300, 575, 0)),
    Part.LineSegment(V(300, 575, 0), V(300, 600, 0)),
    Part.LineSegment(V(300, 600, 0), V(-300, 600, 0)),
    Part.LineSegment(V(-300, 600, 0), V(-300, 575, 0)),
    Part.LineSegment(V(-300, 575, 0), V(-325, 575, 0)),
    Part.LineSegment(V(-325, 575, 0), V(-325, -575, 0)),
    Part.LineSegment(V(-325, -575, 0), V(-300, -575, 0)),
    Part.LineSegment(V(-300, -575, 0), V(-300, -600, 0)),
    Part.LineSegment(V(-300, -600, 0), V(300, -600, 0)),
    Part.LineSegment(V(300, -600, 0), V(300, -575, 0)),
    Part.LineSegment(V(300, -575, 0), V(325, -575, 0)),
    Part.LineSegment(V(325, -575, 0), V(325, 575, 0)),
], False)
sketch14.addConstraint([
    Sketcher.Constraint("Coincident", 0, 2, 1, 1),
    Sketcher.Constraint("Coincident", 1, 2, 2, 1),
    Sketcher.Constraint("Coincident", 2, 2, 3, 1),
    Sketcher.Constraint("Coincident", 3, 2, 4, 1),
    Sketcher.Constraint("Coincident", 4, 2, 5, 1),
    Sketcher.Constraint("Coincident", 5, 2, 6, 1),
    Sketcher.Constraint("Coincident", 6, 2, 7, 1),
    Sketcher.Constraint("Coincident", 7, 2, 8, 1),
    Sketcher.Constraint("Coincident", 8, 2, 9, 1),
    Sketcher.Constraint("Coincident", 9, 2, 10, 1),
    Sketcher.Constraint("Coincident", 10, 2, 11, 1),
    Sketcher.Constraint("Coincident", 11, 2, 0, 1),
    Sketcher.Constraint("Horizontal", 0),
    Sketcher.Constraint("Vertical", 1),
    Sketcher.Constraint("Horizontal", 2),
    Sketcher.Constraint("Vertical", 3),
    Sketcher.Constraint("Horizontal", 4),
    Sketcher.Constraint("Vertical", 5),
    Sketcher.Constraint("Horizontal", 6),
    Sketcher.Constraint("Vertical", 7),
    Sketcher.Constraint("Horizontal", 8),
    Sketcher.Constraint("Vertical", 9),
    Sketcher.Constraint("Horizontal", 10),
    Sketcher.Constraint("Vertical", 11),
    Sketcher.Constraint("Symmetric", 0, 2, 6, 2, -1, 1),
    Sketcher.Constraint("Symmetric", 2, 2, 8, 2, -1, 1),
    Sketcher.Constraint("Symmetric", 4, 2, 10, 2, -1, 1),
    Sketcher.Constraint("Symmetric", 0, 2, 3, 2, -2),
    Sketcher.Constraint("Equal", 10, 1),
    Sketcher.Constraint("DistanceX", 0, 2, 0, 1, Q("25 mm")),
    Sketcher.Constraint("DistanceX", 2, 2, 2, 1, Q("600 mm")),
    Sketcher.Constraint("DistanceY", 5, 2, 5, 1, Q("1150 mm")),
])
pad11 = doc.addObject("PartDesign::Pad", "Pad010")
body2.addObject(pad11)
pad11.Profile = sketch14
pad11.Length = 10

doc.recompute()
